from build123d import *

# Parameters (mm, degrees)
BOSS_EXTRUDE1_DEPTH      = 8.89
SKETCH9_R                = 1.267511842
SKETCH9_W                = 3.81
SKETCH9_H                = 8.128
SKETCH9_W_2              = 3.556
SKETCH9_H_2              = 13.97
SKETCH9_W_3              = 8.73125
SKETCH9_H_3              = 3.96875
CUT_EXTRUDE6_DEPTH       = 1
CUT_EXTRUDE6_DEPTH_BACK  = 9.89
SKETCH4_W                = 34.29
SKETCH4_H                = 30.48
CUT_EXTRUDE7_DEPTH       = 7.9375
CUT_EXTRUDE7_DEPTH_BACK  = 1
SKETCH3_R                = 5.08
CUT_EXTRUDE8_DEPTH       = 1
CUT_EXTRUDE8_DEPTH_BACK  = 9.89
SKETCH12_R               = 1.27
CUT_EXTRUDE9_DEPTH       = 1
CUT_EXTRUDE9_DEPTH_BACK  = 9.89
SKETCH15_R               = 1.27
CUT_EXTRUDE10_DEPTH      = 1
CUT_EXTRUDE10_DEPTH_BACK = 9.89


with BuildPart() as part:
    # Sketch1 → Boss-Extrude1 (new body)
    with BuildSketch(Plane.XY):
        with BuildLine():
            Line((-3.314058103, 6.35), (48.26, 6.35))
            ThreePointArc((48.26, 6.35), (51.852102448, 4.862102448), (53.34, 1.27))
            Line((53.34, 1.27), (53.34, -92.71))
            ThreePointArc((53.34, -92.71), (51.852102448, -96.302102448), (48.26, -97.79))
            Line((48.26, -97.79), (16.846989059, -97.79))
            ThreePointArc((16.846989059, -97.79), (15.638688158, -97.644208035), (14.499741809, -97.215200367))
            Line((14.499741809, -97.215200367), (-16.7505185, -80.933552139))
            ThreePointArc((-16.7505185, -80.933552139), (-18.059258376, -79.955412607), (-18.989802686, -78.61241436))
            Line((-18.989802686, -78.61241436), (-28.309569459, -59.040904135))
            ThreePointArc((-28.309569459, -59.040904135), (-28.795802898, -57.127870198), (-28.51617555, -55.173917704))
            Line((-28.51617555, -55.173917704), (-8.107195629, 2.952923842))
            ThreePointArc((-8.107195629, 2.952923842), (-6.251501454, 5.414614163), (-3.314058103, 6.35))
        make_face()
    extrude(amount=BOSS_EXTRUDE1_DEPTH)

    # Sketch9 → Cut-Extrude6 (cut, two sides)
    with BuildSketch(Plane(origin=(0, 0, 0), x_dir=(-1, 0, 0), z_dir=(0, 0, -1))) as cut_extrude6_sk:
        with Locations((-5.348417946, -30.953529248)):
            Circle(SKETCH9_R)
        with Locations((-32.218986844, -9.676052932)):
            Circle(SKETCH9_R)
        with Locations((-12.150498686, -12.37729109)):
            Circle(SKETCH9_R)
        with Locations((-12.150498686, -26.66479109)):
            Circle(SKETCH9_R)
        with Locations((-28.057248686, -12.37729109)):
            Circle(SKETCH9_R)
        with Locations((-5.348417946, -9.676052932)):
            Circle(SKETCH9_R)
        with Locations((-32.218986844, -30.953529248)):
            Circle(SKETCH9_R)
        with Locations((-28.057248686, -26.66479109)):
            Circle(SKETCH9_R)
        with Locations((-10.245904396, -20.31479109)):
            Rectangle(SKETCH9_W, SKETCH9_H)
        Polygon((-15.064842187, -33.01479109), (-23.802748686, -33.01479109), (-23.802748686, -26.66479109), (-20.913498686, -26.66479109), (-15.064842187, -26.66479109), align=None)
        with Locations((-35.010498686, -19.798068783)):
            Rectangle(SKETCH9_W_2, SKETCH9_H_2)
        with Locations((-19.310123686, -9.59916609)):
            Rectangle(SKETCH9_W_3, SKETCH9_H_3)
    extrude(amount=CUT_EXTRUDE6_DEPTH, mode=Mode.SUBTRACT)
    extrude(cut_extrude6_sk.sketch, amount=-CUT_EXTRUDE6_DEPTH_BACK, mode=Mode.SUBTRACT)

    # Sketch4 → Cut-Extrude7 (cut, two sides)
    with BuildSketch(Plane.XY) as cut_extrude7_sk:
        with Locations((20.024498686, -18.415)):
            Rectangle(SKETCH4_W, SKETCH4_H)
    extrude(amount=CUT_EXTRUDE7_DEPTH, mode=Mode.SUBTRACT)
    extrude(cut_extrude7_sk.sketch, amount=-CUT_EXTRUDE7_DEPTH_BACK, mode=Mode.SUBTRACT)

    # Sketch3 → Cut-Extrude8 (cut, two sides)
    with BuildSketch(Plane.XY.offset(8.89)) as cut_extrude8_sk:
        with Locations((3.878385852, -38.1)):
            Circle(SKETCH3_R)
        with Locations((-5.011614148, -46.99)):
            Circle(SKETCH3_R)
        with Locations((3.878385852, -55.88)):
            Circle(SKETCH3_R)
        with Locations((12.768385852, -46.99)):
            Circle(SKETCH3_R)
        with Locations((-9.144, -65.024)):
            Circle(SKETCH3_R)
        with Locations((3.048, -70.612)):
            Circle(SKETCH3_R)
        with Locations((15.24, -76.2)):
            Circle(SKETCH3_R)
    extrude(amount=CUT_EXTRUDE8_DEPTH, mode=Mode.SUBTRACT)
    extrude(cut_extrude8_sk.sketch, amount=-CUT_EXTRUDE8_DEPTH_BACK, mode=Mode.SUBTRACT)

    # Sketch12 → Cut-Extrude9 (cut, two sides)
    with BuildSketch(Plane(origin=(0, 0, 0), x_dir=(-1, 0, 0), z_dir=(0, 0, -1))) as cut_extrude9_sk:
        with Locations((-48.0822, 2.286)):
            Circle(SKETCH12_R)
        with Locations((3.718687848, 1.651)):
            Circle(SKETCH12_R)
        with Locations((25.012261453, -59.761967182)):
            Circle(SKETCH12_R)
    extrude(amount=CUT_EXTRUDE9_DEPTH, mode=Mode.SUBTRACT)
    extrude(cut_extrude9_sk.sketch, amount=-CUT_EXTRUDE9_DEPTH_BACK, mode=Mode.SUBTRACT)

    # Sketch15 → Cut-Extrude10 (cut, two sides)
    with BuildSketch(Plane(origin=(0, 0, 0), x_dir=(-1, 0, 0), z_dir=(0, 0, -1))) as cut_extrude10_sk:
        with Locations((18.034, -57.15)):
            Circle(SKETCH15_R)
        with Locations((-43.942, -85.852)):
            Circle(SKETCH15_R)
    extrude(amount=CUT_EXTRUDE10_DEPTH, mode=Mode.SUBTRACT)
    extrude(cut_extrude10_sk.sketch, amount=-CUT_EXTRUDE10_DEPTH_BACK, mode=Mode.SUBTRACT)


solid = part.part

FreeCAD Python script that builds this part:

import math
import FreeCAD as App
import Part
import Sketcher
from FreeCAD import Vector
Q = App.Units.Quantity


def add_polygon(sketch, points):
    """Adds a closed chain of lines whose ends are joined by coincident constraints."""
    first, n = sketch.GeometryCount, len(points)
    for a, b in zip(points, points[1:] + points[:1]):
        sketch.addGeometry(Part.LineSegment(App.Vector(*a, 0), App.Vector(*b, 0)), False)
    for i in range(n):
        sketch.addConstraint(Sketcher.Constraint("Coincident", first + i, 2, first + (i + 1) % n, 1))

doc = App.newDocument("Part")
body = doc.addObject("PartDesign::Body", "Body")

# Sketch on XY plane
sketch1 = doc.addObject("Sketcher::SketchObject", "Sketch")
body.addObject(sketch1)
sketch1.AttachmentSupport = (doc.XY_Plane, [""])
sketch1.MapMode = "FlatFace"
sketch1.addGeometry([
    Part.LineSegment(Vector(48.3, 6.3, 0), Vector(-3.3, 6.3, 0)),  # 0
    Part.ArcOfCircle(Part.Circle(Vector(-3.3, 1.3, 0), Vector(0, 0, 1), 5.1), math.radians(90), math.radians(161)),  # 1
    Part.LineSegment(Vector(-8.1, 3, 0), Vector(-28.5, -55.2, 0)),  # 2
    Part.ArcOfCircle(Part.Circle(Vector(-23.7, -56.9, 0), Vector(0, 0, 1), 5.1), math.radians(161), math.radians(205)),  # 3
    Part.LineSegment(Vector(-28.3, -59, 0), Vector(-19, -78.6, 0)),  # 4
    Part.ArcOfCircle(Part.Circle(Vector(-14.4, -76.4, 0), Vector(0, 0, 1), 5.1), math.radians(-155), math.radians(-118)),  # 5
    Part.LineSegment(Vector(-16.8, -80.9, 0), Vector(14.5, -97.2, 0)),  # 6
    Part.ArcOfCircle(Part.Circle(Vector(16.8, -92.7, 0), Vector(0, 0, 1), 5.1), math.radians(-118), math.radians(-90)),  # 7
    Part.LineSegment(Vector(16.8, -97.8, 0), Vector(48.3, -97.8, 0)),  # 8
    Part.ArcOfCircle(Part.Circle(Vector(48.3, -92.7, 0), Vector(0, 0, 1), 5.1), math.radians(-90), math.radians(0)),  # 9
    Part.LineSegment(Vector(53.3, -92.7, 0), Vector(53.3, 1.3, 0)),  # 10
    Part.ArcOfCircle(Part.Circle(Vector(48.3, 1.3, 0), Vector(0, 0, 1), 5.1), math.radians(0), math.radians(90)),  # 11
], False)
sketch1.addConstraint([
    Sketcher.Constraint("Tangent", 0, 2, 1, 1),
    Sketcher.Constraint("Tangent", 1, 2, 2, 1),
    Sketcher.Constraint("Tangent", 2, 2, 3, 1),
    Sketcher.Constraint("Tangent", 3, 2, 4, 1),
    Sketcher.Constraint("Tangent", 4, 2, 5, 1),
    Sketcher.Constraint("Tangent", 5, 2, 6, 1),
    Sketcher.Constraint("Tangent", 6, 2, 7, 1),
    Sketcher.Constraint("Tangent", 7, 2, 8, 1),
    Sketcher.Constraint("Tangent", 8, 2, 9, 1),
    Sketcher.Constraint("Tangent", 9, 2, 10, 1),
    Sketcher.Constraint("Tangent", 10, 2, 11, 1),
    Sketcher.Constraint("Tangent", 11, 2, 0, 1),
    Sketcher.Constraint("Horizontal", 0),
    Sketcher.Constraint("Horizontal", 8),
    Sketcher.Constraint("Vertical", 10),
    Sketcher.Constraint("Equal", 1, 3),
    Sketcher.Constraint("Equal", 3, 5),
    Sketcher.Constraint("Equal", 5, 7),
    Sketcher.Constraint("Equal", 7, 9),
    Sketcher.Constraint("Equal", 9, 11),
    Sketcher.Constraint("Radius", 1, Q("0.2 in")),
    Sketcher.Constraint("DistanceY", 10, 1, 10, 2, Q("3.7 in")),
    Sketcher.Constraint("DistanceX", -1, 1, 9, 3, Q("1.9 in")),
    Sketcher.Constraint("DistanceY", -1, 1, 1, 3, Q("0.05 in")),
    Sketcher.Constraint("DistanceX", 0, 2, 0, 1, 51.574058),
    Sketcher.Constraint("DistanceX", 8, 1, 8, 2, 31.413011),
    Sketcher.Constraint("DistanceY", 6, 2, -1, 1, 97.2152),
    Sketcher.Constraint("DistanceX", 3, 2, 5, 3, 13.906298),
    Sketcher.Constraint("Distance", 2, 61.60565),
    Sketcher.Constraint("Distance", 6, 35.23735),
])
pad1 = doc.addObject("PartDesign::Pad", "Pad")
body.addObject(pad1)
pad1.Profile = sketch1
pad1.Length = Q("0.35 in")

# Sketch on XY plane
sketch2 = doc.addObject("Sketcher::SketchObject", "Sketch001")
body.addObject(sketch2)
sketch2.AttachmentSupport = (doc.XY_Plane, [""])
sketch2.MapMode = "FlatFace"
sketch2.addGeometry(Part.Circle(Vector(5.3, -31, 0), Vector(0, 0, 1), 1.3), False)  # 0
sketch2.addGeometry(Part.Circle(Vector(32.2, -9.7, 0), Vector(0, 0, 1), 1.3), False)  # 1
sketch2.addGeometry(Part.Circle(Vector(12.2, -12.4, 0), Vector(0, 0, 1), 1.3), False)  # 2
sketch2.addGeometry(Part.Circle(Vector(12.2, -26.7, 0), Vector(0, 0, 1), 1.3), False)  # 3
sketch2.addGeometry(Part.Circle(Vector(28.1, -12.4, 0), Vector(0, 0, 1), 1.3), False)  # 4
sketch2.addGeometry(Part.Circle(Vector(5.3, -9.7, 0), Vector(0, 0, 1), 1.3), False)  # 5
sketch2.addGeometry(Part.Circle(Vector(32.2, -31, 0), Vector(0, 0, 1), 1.3), False)  # 6
sketch2.addGeometry(Part.Circle(Vector(28.1, -26.7, 0), Vector(0, 0, 1), 1.3), False)  # 7
add_polygon(sketch2, [(12.2, -16.3), (12.2, -24.4), (8.3, -24.4), (8.3, -16.3)])  # lines 8-11
add_polygon(sketch2, [(23.8, -33), (15.1, -33), (15.1, -26.7), (23.8, -26.7)])  # lines 12-15
add_polygon(sketch2, [(36.8, -12.8), (36.8, -26.8), (33.2, -26.8), (33.2, -12.8)])  # lines 16-19
add_polygon(sketch2, [(23.7, -7.6), (23.7, -11.6), (14.9, -11.6), (14.9, -7.6)])  # lines 20-23
sketch2.addConstraint([
    Sketcher.Constraint("Vertical", 8),
    Sketcher.Constraint("Horizontal", 9),
    Sketcher.Constraint("Vertical", 10),
    Sketcher.Constraint("Horizontal", 11),
    Sketcher.Constraint("Horizontal", 12),
    Sketcher.Constraint("Vertical", 13),
    Sketcher.Constraint("Horizontal", 14),
    Sketcher.Constraint("Vertical", 15),
    Sketcher.Constraint("Vertical", 16),
    Sketcher.Constraint("Horizontal", 17),
    Sketcher.Constraint("Vertical", 18),
    Sketcher.Constraint("Horizontal", 19),
    Sketcher.Constraint("Vertical", 20),
    Sketcher.Constraint("Horizontal", 21),
    Sketcher.Constraint("Vertical", 22),
    Sketcher.Constraint("Horizontal", 23),
    Sketcher.Constraint("Equal", 0, 1),
    Sketcher.Constraint("Equal", 1, 2),
    Sketcher.Constraint("Equal", 2, 3),
    Sketcher.Constraint("Equal", 3, 4),
    Sketcher.Constraint("Equal", 4, 5),
    Sketcher.Constraint("Equal", 5, 6),
    Sketcher.Constraint("Equal", 6, 7),
    Sketcher.Constraint("Horizontal", 2, 3, 4, 3),
    Sketcher.Constraint("Horizontal", 1, 3, 5, 3),
    Sketcher.Constraint("Horizontal", 0, 3, 6, 3),
    Sketcher.Constraint("Horizontal", 3, 3, 7, 3),
    Sketcher.Constraint("Horizontal", 7, 3, 13, 2),
    Sketcher.Constraint("Vertical", 2, 3, 3, 3),
    Sketcher.Constraint("Vertical", 0, 3, 5, 3),
    Sketcher.Constraint("Vertical", 1, 3, 6, 3),
    Sketcher.Constraint("Vertical", 4, 3, 7, 3),
    Sketcher.Constraint("DistanceX", 9, 2, 9, 1, Q("0.15 in")),
    Sketcher.Constraint("DistanceX", 17, 2, 17, 1, Q("0.14 in")),
    Sketcher.Constraint("DistanceY", 8, 2, 8, 1, Q("0.32 in")),
    Sketcher.Constraint("DistanceY", 13, 1, 13, 2, Q("0.25 in")),
    Sketcher.Constraint("DistanceY", 16, 2, 16, 1, Q("0.55 in")),
    Sketcher.Constraint("DistanceX", 21, 2, 21, 1, Q("0.34375 in")),
    Sketcher.Constraint("DistanceY", 20, 2, 20, 1, Q("0.15625 in")),
    Sketcher.Constraint("DistanceY", 3, 3, 8, 2, Q("0.09 in")),
    Sketcher.Constraint("DistanceX", 2, 3, 21, 2, Q("0.11 in")),
    Sketcher.Constraint("DistanceY", 11, 2, 22, 2, Q("0.34 in")),
    Sketcher.Constraint("DistanceY", 3, 3, 2, 3, Q("0.5625 in")),
    Sketcher.Constraint("DistanceX", 7, 3, 16, 2, Q("0.34375 in")),
    Sketcher.Constraint("Diameter", 0, 2.535024),
    Sketcher.Constraint("DistanceX", 14, 2, 7, 3, Q("0.1675 in")),
    Sketcher.Constraint("DistanceX", 20, 2, 4, 3, Q("0.1725 in")),
    Sketcher.Constraint("DistanceX", -1, 1, 2, 3, 12.150499),
    Sketcher.Constraint("DistanceX", 12, 2, 12, 1, 8.737906),
    Sketcher.Constraint("DistanceY", 0, 3, -1, 1, 30.953529),
    Sketcher.Constraint("DistanceY", 2, 3, -1, 1, 12.377291),
    Sketcher.Constraint("DistanceY", 16, 2, -1, 1, 26.783069),
    Sketcher.Constraint("DistanceX", 0, 3, 1, 3, 26.870569),
    Sketcher.Constraint("DistanceX", 0, 3, 2, 3, 6.802081),
    Sketcher.Constraint("DistanceY", 2, 3, 1, 3, 2.701238),
    Sketcher.Constraint("DistanceX", -1, 1, 8, 2, 12.150904),
])
pocket1 = doc.addObject("PartDesign::Pocket", "Pocket")
body.addObject(pocket1)
pocket1.Profile = sketch2
pocket1.Type = "ThroughAll"
pocket1.Midplane = True

# Sketch on XY plane
sketch3 = doc.addObject("Sketcher::SketchObject", "Sketch002")
body.addObject(sketch3)
sketch3.AttachmentSupport = (doc.XY_Plane, [""])
sketch3.MapMode = "FlatFace"
add_polygon(sketch3, [(3, -3), (3, -34), (37, -34), (37, -3)])  # lines 0-3
sketch3.addConstraint([
    Sketcher.Constraint("Vertical", 0),
    Sketcher.Constraint("Horizontal", 1),
    Sketcher.Constraint("Vertical", 2),
    Sketcher.Constraint("Horizontal", 3),
    Sketcher.Constraint("DistanceY", 0, 2, 0, 1, Q("1.2 in")),
    Sketcher.Constraint("DistanceX", 1, 1, 1, 2, Q("1.35 in")),
    Sketcher.Constraint("DistanceY", 0, 2, -1, 1, Q("1.325 in")),
    Sketcher.Constraint("DistanceX", -1, 1, 0, 2, 2.879499),
])
pocket2 = doc.addObject("PartDesign::Pocket", "Pocket001")
body.addObject(pocket2)
pocket2.Profile = sketch3
pocket2.Type = "TwoLengths"
pocket2.Length = Q("0.3125 in")
pocket2.Length2 = 1
pocket2.Reversed = True

# Sketch on XY plane
sketch4 = doc.addObject("Sketcher::SketchObject", "Sketch003")
body.addObject(sketch4)
sketch4.AttachmentSupport = (doc.XY_Plane, [""])
sketch4.MapMode = "FlatFace"
sketch4.AttachmentOffset = App.Placement(Vector(0, 0, 0.35 * 25.4), App.Rotation())
sketch4.addGeometry([
    Part.Circle(Vector(4, -38, 0), Vector(0, 0, 1), 5),  # 0
    Part.Circle(Vector(-5, -47, 0), Vector(0, 0, 1), 5),  # 1
    Part.Circle(Vector(4, -56, 0), Vector(0, 0, 1), 5),  # 2
    Part.Circle(Vector(13, -47, 0), Vector(0, 0, 1), 5),  # 3
    Part.Circle(Vector(-9, -65, 0), Vector(0, 0, 1), 5),  # 4
    Part.Circle(Vector(3, -71, 0), Vector(0, 0, 1), 5),  # 5
    Part.Circle(Vector(15, -76, 0), Vector(0, 0, 1), 5),  # 6
], False)
sketch4.addConstraint([
    Sketcher.Constraint("Equal", 0, 1),
    Sketcher.Constraint("Equal", 1, 2),
    Sketcher.Constraint("Equal", 2, 3),
    Sketcher.Constraint("Equal", 3, 4),
    Sketcher.Constraint("Equal", 4, 5),
    Sketcher.Constraint("Equal", 5, 6),
    Sketcher.Constraint("Horizontal", 1, 3, 3, 3),
    Sketcher.Constraint("Vertical", 0, 3, 2, 3),
    Sketcher.Constraint("Diameter", 0, Q("0.4 in")),
    Sketcher.Constraint("DistanceY", 6, 3, -1, 1, Q("3 in")),
    Sketcher.Constraint("DistanceY", 0, 3, -1, 1, Q("1.5 in")),
    Sketcher.Constraint("DistanceY", 2, 3, -1, 1, Q("2.2 in")),
    Sketcher.Constraint("DistanceX", -1, 1, 6, 3, Q("0.6 in")),
    Sketcher.Constraint("DistanceX", 1, 3, 3, 3, Q("0.7 in")),
    Sketcher.Constraint("DistanceY", 1, 3, -1, 1, Q("1.85 in")),
    Sketcher.Constraint("DistanceX", 4, 3, -1, 1, Q("0.36 in")),
    Sketcher.Constraint("DistanceY", 4, 3, -1, 1, Q("2.56 in")),
    Sketcher.Constraint("DistanceX", -1, 1, 5, 3, Q("0.12 in")),
    Sketcher.Constraint("DistanceY", 5, 3, -1, 1, Q("2.78 in")),
    Sketcher.Constraint("DistanceX", 1, 3, 0, 3, Q("0.35 in")),
    Sketcher.Constraint("DistanceX", -1, 1, 0, 3, 3.878386),
])
pocket3 = doc.addObject("PartDesign::Pocket", "Pocket002")
body.addObject(pocket3)
pocket3.Profile = sketch4
pocket3.Type = "ThroughAll"
pocket3.Midplane = True

# Sketch on XY plane
sketch5 = doc.addObject("Sketcher::SketchObject", "Sketch004")
body.addObject(sketch5)
sketch5.AttachmentSupport = (doc.XY_Plane, [""])
sketch5.MapMode = "FlatFace"
sketch5.addGeometry([
    Part.Circle(Vector(48.1, 2.3, 0), Vector(0, 0, 1), 1.3),
    Part.Circle(Vector(-3.7, 1.7, 0), Vector(0, 0, 1), 1.3),
    Part.Circle(Vector(-25, -59.8, 0), Vector(0, 0, 1), 1.3),
], False)
sketch5.addConstraint([
    Sketcher.Constraint("Equal", 0, 1),
    Sketcher.Constraint("Equal", 1, 2),
    Sketcher.Constraint("Diameter", 0, Q("0.1 in")),
    Sketcher.Constraint("DistanceY", -1, 1, 0, 3, Q("0.09 in")),
    Sketcher.Constraint("DistanceX", -1, 1, 0, 3, Q("1.893 in")),
    Sketcher.Constraint("DistanceY", -1, 1, 1, 3, Q("0.065 in")),
    Sketcher.Constraint("DistanceX", 2, 3, -1, 1, 25.012261),
    Sketcher.Constraint("DistanceX", 1, 3, -1, 1, 3.718688),
    Sketcher.Constraint("DistanceY", 2, 3, -1, 1, 59.761967),
])
pocket4 = doc.addObject("PartDesign::Pocket", "Pocket003")
body.addObject(pocket4)
pocket4.Profile = sketch5
pocket4.Type = "ThroughAll"
pocket4.Midplane = True

# Sketch on XY plane
sketch6 = doc.addObject("Sketcher::SketchObject", "Sketch005")
body.addObject(sketch6)
sketch6.AttachmentSupport = (doc.XY_Plane, [""])
sketch6.MapMode = "FlatFace"
sketch6.addGeometry([
    Part.Circle(Vector(-18, -57.1, 0), Vector(0, 0, 1), 1.3),
    Part.Circle(Vector(43.9, -85.9, 0), Vector(0, 0, 1), 1.3),
], False)
sketch6.addConstraint([
    Sketcher.Constraint("Equal", 0, 1),
    Sketcher.Constraint("Diameter", 0, Q("0.1 in")),
    Sketcher.Constraint("DistanceX", 0, 3, -1, 1, Q("0.71 in")),
    Sketcher.Constraint("DistanceY", 0, 3, -1, 1, Q("2.25 in")),
    Sketcher.Constraint("DistanceX", -1, 1, 1, 3, Q("1.73 in")),
    Sketcher.Constraint("DistanceY", 1, 3, -1, 1, Q("3.38 in")),
])
pocket5 = doc.addObject("PartDesign::Pocket", "Pocket004")
body.addObject(pocket5)
pocket5.Profile = sketch6
pocket5.Type = "ThroughAll"
pocket5.Midplane = True

doc.recompute()
